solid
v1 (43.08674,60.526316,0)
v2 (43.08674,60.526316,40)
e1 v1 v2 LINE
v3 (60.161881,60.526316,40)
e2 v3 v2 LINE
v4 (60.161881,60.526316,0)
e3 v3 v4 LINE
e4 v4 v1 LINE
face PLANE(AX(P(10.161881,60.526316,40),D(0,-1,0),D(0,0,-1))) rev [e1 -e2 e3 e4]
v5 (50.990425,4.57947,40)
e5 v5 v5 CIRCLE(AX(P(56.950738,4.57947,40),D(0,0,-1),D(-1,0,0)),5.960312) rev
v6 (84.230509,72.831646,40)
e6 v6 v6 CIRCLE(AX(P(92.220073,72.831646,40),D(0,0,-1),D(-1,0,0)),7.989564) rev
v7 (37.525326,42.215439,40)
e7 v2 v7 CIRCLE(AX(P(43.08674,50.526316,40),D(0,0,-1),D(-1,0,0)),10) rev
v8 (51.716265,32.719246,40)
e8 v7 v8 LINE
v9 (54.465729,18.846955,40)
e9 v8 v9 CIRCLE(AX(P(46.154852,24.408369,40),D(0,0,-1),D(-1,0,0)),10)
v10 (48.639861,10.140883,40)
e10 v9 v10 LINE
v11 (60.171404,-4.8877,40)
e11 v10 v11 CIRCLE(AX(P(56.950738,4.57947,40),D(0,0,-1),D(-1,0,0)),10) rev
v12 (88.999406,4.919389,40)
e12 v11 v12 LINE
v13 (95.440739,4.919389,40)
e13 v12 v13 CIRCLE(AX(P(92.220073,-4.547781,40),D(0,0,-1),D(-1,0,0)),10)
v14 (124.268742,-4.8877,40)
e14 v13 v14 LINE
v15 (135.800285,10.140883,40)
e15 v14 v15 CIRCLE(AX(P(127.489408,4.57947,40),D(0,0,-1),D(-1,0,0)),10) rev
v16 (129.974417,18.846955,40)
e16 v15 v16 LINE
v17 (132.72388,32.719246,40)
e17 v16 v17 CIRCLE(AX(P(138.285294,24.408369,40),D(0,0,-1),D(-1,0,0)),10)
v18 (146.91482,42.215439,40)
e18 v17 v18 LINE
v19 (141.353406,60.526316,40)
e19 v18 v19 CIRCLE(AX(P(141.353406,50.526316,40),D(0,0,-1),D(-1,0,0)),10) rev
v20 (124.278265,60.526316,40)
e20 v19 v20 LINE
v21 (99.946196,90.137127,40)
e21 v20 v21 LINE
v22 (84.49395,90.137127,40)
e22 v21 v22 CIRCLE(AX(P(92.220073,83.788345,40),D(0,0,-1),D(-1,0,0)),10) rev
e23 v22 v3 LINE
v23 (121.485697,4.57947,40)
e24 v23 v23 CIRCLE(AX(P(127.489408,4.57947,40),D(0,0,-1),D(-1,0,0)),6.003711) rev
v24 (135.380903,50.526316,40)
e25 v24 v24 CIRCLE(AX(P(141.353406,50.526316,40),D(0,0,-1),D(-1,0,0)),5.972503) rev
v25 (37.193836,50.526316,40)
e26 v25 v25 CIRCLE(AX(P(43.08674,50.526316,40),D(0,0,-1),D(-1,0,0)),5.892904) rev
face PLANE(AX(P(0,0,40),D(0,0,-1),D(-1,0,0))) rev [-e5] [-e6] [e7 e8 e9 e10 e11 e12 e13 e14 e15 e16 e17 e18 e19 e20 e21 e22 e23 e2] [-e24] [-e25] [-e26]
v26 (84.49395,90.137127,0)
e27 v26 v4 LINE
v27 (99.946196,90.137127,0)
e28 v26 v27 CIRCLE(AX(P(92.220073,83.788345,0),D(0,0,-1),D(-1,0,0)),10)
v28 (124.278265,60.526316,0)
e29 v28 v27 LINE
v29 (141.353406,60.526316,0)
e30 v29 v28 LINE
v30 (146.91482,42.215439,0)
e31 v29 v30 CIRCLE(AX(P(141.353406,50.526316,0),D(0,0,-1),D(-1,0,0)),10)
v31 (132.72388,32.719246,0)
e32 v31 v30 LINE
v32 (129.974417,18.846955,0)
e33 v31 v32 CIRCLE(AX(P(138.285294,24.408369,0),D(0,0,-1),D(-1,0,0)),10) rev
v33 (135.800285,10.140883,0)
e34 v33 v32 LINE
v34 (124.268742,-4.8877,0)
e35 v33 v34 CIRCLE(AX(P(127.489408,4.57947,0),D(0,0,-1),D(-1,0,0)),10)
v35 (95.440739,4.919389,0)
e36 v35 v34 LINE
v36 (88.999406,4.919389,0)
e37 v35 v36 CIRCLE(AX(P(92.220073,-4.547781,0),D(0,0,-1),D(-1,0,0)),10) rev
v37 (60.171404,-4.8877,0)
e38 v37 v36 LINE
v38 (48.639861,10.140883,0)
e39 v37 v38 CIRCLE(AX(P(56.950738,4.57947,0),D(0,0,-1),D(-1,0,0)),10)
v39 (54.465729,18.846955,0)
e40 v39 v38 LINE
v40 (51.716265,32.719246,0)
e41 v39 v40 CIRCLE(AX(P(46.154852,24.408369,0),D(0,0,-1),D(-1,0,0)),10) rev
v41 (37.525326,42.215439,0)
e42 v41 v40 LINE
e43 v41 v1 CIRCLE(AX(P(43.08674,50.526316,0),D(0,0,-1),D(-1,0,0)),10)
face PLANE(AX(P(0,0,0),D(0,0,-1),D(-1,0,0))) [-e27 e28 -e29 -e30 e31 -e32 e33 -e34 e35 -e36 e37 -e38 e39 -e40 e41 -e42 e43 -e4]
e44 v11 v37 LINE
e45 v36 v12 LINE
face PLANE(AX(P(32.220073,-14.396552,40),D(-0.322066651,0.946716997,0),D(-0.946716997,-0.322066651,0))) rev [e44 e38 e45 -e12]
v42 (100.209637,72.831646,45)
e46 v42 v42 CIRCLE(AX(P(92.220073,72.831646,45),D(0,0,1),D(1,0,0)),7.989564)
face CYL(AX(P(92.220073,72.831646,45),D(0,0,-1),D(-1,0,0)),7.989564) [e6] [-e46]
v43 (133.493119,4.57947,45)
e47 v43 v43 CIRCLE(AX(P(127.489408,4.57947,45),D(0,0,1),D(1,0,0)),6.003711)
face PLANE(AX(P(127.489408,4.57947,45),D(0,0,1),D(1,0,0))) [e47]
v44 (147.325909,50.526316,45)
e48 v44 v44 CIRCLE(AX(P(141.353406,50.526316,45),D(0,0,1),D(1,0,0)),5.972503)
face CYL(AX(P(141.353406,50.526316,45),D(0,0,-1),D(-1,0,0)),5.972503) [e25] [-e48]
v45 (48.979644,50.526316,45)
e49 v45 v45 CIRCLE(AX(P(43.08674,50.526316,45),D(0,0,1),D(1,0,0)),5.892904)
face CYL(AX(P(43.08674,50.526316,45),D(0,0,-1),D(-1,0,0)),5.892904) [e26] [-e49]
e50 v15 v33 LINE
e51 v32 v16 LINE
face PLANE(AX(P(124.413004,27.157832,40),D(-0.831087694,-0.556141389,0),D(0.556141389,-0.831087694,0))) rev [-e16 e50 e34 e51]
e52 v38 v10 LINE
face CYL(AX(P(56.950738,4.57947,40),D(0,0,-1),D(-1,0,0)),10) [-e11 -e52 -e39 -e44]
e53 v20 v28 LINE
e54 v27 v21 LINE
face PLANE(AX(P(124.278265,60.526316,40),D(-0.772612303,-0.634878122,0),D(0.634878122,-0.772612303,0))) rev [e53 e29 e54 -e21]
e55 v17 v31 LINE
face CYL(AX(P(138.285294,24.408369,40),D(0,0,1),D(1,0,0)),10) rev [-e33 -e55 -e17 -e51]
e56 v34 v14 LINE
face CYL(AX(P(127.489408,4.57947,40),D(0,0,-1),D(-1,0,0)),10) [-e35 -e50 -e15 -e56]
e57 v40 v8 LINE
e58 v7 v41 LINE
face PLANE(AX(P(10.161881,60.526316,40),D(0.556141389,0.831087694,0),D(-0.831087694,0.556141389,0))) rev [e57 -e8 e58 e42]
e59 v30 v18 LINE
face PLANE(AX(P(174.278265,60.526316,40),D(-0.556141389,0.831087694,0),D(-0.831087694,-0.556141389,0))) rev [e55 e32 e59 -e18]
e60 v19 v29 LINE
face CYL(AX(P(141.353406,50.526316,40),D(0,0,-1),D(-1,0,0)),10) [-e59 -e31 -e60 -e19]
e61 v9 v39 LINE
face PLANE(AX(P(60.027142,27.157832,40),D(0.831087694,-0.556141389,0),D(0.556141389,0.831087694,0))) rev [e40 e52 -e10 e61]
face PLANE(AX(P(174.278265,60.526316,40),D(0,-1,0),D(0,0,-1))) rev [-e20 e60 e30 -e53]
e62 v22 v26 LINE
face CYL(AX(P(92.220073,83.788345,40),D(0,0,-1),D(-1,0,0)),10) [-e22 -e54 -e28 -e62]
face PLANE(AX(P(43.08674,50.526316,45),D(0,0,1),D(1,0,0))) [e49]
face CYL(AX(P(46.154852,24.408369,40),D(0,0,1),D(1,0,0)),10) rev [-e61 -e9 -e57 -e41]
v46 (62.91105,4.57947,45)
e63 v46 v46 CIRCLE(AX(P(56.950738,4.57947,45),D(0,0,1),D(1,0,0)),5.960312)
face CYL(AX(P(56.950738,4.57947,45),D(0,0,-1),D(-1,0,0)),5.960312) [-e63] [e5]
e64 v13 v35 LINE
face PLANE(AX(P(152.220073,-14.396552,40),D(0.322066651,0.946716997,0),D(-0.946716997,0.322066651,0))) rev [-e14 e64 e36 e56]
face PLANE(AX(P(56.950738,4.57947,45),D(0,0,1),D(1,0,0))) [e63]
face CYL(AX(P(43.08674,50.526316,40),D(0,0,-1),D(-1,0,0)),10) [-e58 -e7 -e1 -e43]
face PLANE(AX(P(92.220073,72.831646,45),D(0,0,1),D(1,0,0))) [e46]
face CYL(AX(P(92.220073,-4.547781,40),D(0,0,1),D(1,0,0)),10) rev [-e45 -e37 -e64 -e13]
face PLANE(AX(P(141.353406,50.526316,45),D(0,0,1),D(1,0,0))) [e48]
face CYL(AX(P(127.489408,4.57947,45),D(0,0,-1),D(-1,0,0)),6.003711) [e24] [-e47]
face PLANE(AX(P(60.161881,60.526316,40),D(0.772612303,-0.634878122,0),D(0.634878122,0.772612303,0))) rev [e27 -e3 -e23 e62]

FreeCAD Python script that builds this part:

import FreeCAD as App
import Part
import Sketcher
Q = App.Units.Quantity


def edges_at(feature, points):
    """Names of the edges that pass closest to the given points."""
    edges = feature.Shape.Edges
    near = lambda p: min(range(len(edges)), key=lambda i: edges[i].distToShape(Part.Vertex(*p))[0])
    return sorted({f"Edge{near(p) + 1}" for p in points})

doc = App.newDocument("Part")
body = doc.addObject("PartDesign::Body", "Body")

# Sketch on XY plane
sketch1 = body.newObject("Sketcher::SketchObject", "Sketch")
sketch1.AttachmentSupport = (doc.getObject("XY_Plane"), [""])
sketch1.MapMode = "FlatFace"
sketch1.addGeometry([
    Part.LineSegment(App.Vector(60.161881, 60.526316, 0), App.Vector(10.161881, 60.526316, 0)),  # 0
    Part.LineSegment(App.Vector(10.161881, 60.526316, 0), App.Vector(60.027142, 27.157832, 0)),  # 1
    Part.LineSegment(App.Vector(60.027142, 27.157832, 0), App.Vector(32.220073, -14.396552, 0)),  # 2
    Part.LineSegment(App.Vector(32.220073, -14.396552, 0), App.Vector(92.220073, 6.015038, 0)),  # 3
    Part.LineSegment(App.Vector(92.220073, 6.015038, 0), App.Vector(152.220073, -14.396552, 0)),  # 4
    Part.LineSegment(App.Vector(152.220073, -14.396552, 0), App.Vector(124.413004, 27.157832, 0)),  # 5
    Part.LineSegment(App.Vector(124.413004, 27.157832, 0), App.Vector(174.278265, 60.526316, 0)),  # 6
    Part.LineSegment(App.Vector(174.278265, 60.526316, 0), App.Vector(124.278265, 60.526316, 0)),  # 7
    Part.LineSegment(App.Vector(124.278265, 60.526316, 0), App.Vector(92.220073, 99.5394, 0)),  # 8
    Part.LineSegment(App.Vector(92.220073, 99.5394, 0), App.Vector(60.161881, 60.526316, 0)),  # 9
], False)
sketch1.addConstraint([
    Sketcher.Constraint("Coincident", 0, 2, 1, 1),
    Sketcher.Constraint("Coincident", 1, 2, 2, 1),
    Sketcher.Constraint("Coincident", 2, 2, 3, 1),
    Sketcher.Constraint("Coincident", 3, 2, 4, 1),
    Sketcher.Constraint("Coincident", 4, 2, 5, 1),
    Sketcher.Constraint("Coincident", 5, 2, 6, 1),
    Sketcher.Constraint("Coincident", 6, 2, 7, 1),
    Sketcher.Constraint("Coincident", 7, 2, 8, 1),
    Sketcher.Constraint("Coincident", 8, 2, 9, 1),
    Sketcher.Constraint("Coincident", 9, 2, 0, 1),
    Sketcher.Constraint("Horizontal", 0),
    Sketcher.Constraint("Horizontal", 7),
    Sketcher.Constraint("Perpendicular", 1, 2),
    Sketcher.Constraint("Perpendicular", 5, 6),
    Sketcher.Constraint("Horizontal", 2, 2, 4, 2),
    Sketcher.Constraint("Horizontal", 1, 2, 5, 2),
    Sketcher.Constraint("Horizontal", 0, 2, 6, 2),
    Sketcher.Constraint("Vertical", 3, 2, 8, 2),
    Sketcher.Constraint("Equal", 0, 7),
    Sketcher.Constraint("Equal", 3, 4),
    Sketcher.Constraint("Equal", 2, 5),
    Sketcher.Constraint("DistanceX", 0, 2, 0, 1, Q("50 mm")),
    Sketcher.Constraint("Distance", 1, Q("60 mm")),
    Sketcher.Constraint("Distance", 2, Q("50 mm")),
    Sketcher.Constraint("DistanceX", 2, 2, 3, 2, Q("60 mm")),
    Sketcher.Constraint("DistanceY", -1, 1, 8, 2, Q("99.5394 mm")),
    Sketcher.Constraint("DistanceX", -1, 1, 0, 2, Q("10.161881 mm")),
    Sketcher.Constraint("DistanceX", 0, 2, 1, 2, Q("49.865262 mm")),
    Sketcher.Constraint("DistanceY", 2, 2, 3, 2, Q("20.41159 mm")),
    Sketcher.Constraint("Distance", 8, Q("50.495034 mm")),
])
pad1 = body.newObject("PartDesign::Pad", "Pad")
pad1.Profile = sketch1
pad1.Length = 40
doc.recompute()

fillet = body.newObject("PartDesign::Fillet", "Fillet")
fillet.Base = (pad1, edges_at(pad1, [
    (10.162, 60.526, 20),
    (92.22, 99.539, 20),
    (174.278, 60.526, 20),
    (124.413, 27.158, 20),
    (152.22, -14.397, 20),
    (92.22, 6.015, 20),
    (32.22, -14.397, 20),
    (60.027, 27.158, 20),
]))
fillet.Radius = 10

# Sketch on XY plane
sketch2 = body.newObject("Sketcher::SketchObject", "Sketch001")
sketch2.AttachmentSupport = (doc.getObject("XY_Plane"), [""])
sketch2.MapMode = "FlatFace"
sketch2.AttachmentOffset = App.Placement(App.Vector(0, 0, 40), App.Rotation())
sketch2.addGeometry([
    Part.Circle(App.Vector(92.220073, 72.831646, 0), App.Vector(0, 0, 1), 7.989564),  # 0
    Part.Circle(App.Vector(43.08674, 50.526316, 0), App.Vector(0, 0, 1), 5.892904),  # 1
    Part.Circle(App.Vector(56.950738, 4.57947, 0), App.Vector(0, 0, 1), 5.960312),  # 2
    Part.Circle(App.Vector(127.489408, 4.57947, 0), App.Vector(0, 0, 1), 6.003711),  # 3
    Part.Circle(App.Vector(141.353406, 50.526316, 0), App.Vector(0, 0, 1), 5.972503),  # 4
], False)
sketch2.addConstraint([
    Sketcher.Constraint("Horizontal", 2, 3, 3, 3),
    Sketcher.Constraint("Horizontal", 1, 3, 4, 3),
    Sketcher.Constraint("Diameter", 0, Q("15.979128 mm")),
    Sketcher.Constraint("Diameter", 3, Q("12.007422 mm")),
    Sketcher.Constraint("Diameter", 1, Q("11.785808 mm")),
    Sketcher.Constraint("Diameter", 2, Q("11.920624 mm")),
    Sketcher.Constraint("Diameter", 4, Q("11.945005 mm")),
    Sketcher.Constraint("DistanceX", -1, 1, 1, 3, Q("43.08674 mm")),
    Sketcher.Constraint("DistanceY", -1, 1, 2, 3, Q("4.57947 mm")),
    Sketcher.Constraint("DistanceX", -1, 1, 3, 3, Q("127.489408 mm")),
    Sketcher.Constraint("DistanceY", 1, 3, 0, 3, Q("22.305331 mm")),
    Sketcher.Constraint("DistanceX", 2, 3, 3, 3, Q("70.538671 mm")),
    Sketcher.Constraint("DistanceX", 2, 3, 4, 3, Q("84.402668 mm")),
    Sketcher.Constraint("DistanceX", -1, 1, 0, 3, Q("92.220073 mm")),
    Sketcher.Constraint("DistanceY", -1, 1, 0, 3, Q("72.831646 mm")),
])
pad2 = body.newObject("PartDesign::Pad", "Pad001")
pad2.Profile = sketch2
pad2.Length = 5

doc.recompute()
